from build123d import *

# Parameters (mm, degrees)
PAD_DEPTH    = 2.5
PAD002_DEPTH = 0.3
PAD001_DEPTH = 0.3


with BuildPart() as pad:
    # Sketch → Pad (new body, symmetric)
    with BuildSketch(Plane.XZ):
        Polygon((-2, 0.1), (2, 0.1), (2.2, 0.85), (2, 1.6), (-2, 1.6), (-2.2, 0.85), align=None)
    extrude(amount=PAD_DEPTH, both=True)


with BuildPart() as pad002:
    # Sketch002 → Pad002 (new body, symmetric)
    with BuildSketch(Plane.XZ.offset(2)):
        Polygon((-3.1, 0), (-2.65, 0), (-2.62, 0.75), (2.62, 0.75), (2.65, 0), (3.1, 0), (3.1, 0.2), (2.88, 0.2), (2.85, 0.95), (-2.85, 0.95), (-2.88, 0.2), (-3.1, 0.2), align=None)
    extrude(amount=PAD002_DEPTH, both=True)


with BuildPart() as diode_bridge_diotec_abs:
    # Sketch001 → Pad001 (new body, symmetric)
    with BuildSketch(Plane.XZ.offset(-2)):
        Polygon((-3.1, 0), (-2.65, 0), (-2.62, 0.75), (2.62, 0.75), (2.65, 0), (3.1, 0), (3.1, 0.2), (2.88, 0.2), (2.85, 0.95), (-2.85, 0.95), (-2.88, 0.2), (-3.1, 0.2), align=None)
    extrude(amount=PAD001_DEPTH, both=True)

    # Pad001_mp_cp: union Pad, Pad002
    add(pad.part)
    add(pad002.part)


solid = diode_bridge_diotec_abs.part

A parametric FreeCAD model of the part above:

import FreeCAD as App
import Part
import Sketcher
from FreeCAD import Vector
Q = App.Units.Quantity

doc = App.newDocument("Part")
body = doc.addObject("PartDesign::Body", "Body")

# Sketch on XZ plane
sketch1 = body.newObject("Sketcher::SketchObject", "Sketch")
sketch1.AttachmentSupport = (doc.getObject("XZ_Plane"), [""])
sketch1.MapMode = "FlatFace"
sketch1.addGeometry([
    Part.LineSegment(Vector(-2, 0.1, 0), Vector(2, 0.1, 0)),  # 0
    Part.LineSegment(Vector(2, 0.1, 0), Vector(2.2, 0.8, 0)),  # 1
    Part.LineSegment(Vector(2.2, 0.8, 0), Vector(2, 1.6, 0)),  # 2
    Part.LineSegment(Vector(2, 1.6, 0), Vector(-2, 1.6, 0)),  # 3
    Part.LineSegment(Vector(-2, 1.6, 0), Vector(-2.2, 0.8, 0)),  # 4
    Part.LineSegment(Vector(-2.2, 0.8, 0), Vector(-2, 0.1, 0)),  # 5
], False)
sketch1.addConstraint([
    Sketcher.Constraint("Coincident", 0, 2, 1, 1),
    Sketcher.Constraint("Coincident", 1, 2, 2, 1),
    Sketcher.Constraint("Coincident", 2, 2, 3, 1),
    Sketcher.Constraint("Coincident", 3, 2, 4, 1),
    Sketcher.Constraint("Coincident", 4, 2, 5, 1),
    Sketcher.Constraint("Coincident", 5, 2, 0, 1),
    Sketcher.Constraint("Horizontal", 0),
    Sketcher.Constraint("Horizontal", 3),
    Sketcher.Constraint("Symmetric", 1, 2, 4, 2, -2),
    Sketcher.Constraint("Parallel", 1, 4),
    Sketcher.Constraint("Parallel", 2, 5),
    Sketcher.Constraint("Vertical", 0, 2, 2, 2),
    Sketcher.Constraint("Vertical", 3, 2, 5, 2),
    Sketcher.Constraint("DistanceX", 0, 1, 0, 2, Q("4 mm")),
    Sketcher.Constraint("DistanceY", -1, 1, 0, 2, Q("0.1 mm")),
    Sketcher.Constraint("DistanceX", -1, 1, 1, 2, Q("2.2 mm")),
    Sketcher.Constraint("DistanceY", -1, 1, 2, 2, Q("1.6 mm")),
])
pad1 = body.newObject("PartDesign::Pad", "Pad")
pad1.Profile = sketch1
pad1.Length = 5
pad1.Midplane = True
body2 = doc.addObject("PartDesign::Body", "Body001")

# Sketch on XZ plane
sketch2 = body2.newObject("Sketcher::SketchObject", "Sketch001")
sketch2.AttachmentSupport = (doc.getObject("XZ_Plane001"), [""])
sketch2.MapMode = "FlatFace"
sketch2.AttachmentOffset = App.Placement(Vector(0, 0, 2), App.Rotation())
sketch2.addGeometry([
    Part.LineSegment(Vector(-3.1, 0, 0), Vector(-2.65, 0, 0)),  # 0
    Part.LineSegment(Vector(-2.65, 0, 0), Vector(-2.62, 0.75, 0)),  # 1
    Part.LineSegment(Vector(-2.62, 0.75, 0), Vector(2.62, 0.75, 0)),  # 2
    Part.LineSegment(Vector(2.62, 0.75, 0), Vector(2.65, 0, 0)),  # 3
    Part.LineSegment(Vector(2.65, 0, 0), Vector(3.1, 0, 0)),  # 4
    Part.LineSegment(Vector(3.1, 0, 0), Vector(3.1, 0.2, 0)),  # 5
    Part.LineSegment(Vector(3.1, 0.2, 0), Vector(2.88, 0.2, 0)),  # 6
    Part.LineSegment(Vector(2.88, 0.2, 0), Vector(2.85, 0.95, 0)),  # 7
    Part.LineSegment(Vector(2.85, 0.95, 0), Vector(-2.85, 0.95, 0)),  # 8
    Part.LineSegment(Vector(-2.85, 0.95, 0), Vector(-2.88, 0.2, 0)),  # 9
    Part.LineSegment(Vector(-2.88, 0.2, 0), Vector(-3.1, 0.2, 0)),  # 10
    Part.LineSegment(Vector(-3.1, 0.2, 0), Vector(-3.1, 0, 0)),  # 11
], False)
sketch2.addConstraint([
    Sketcher.Constraint("Coincident", 0, 2, 1, 1),
    Sketcher.Constraint("Coincident", 1, 2, 2, 1),
    Sketcher.Constraint("Coincident", 2, 2, 3, 1),
    Sketcher.Constraint("Coincident", 3, 2, 4, 1),
    Sketcher.Constraint("Coincident", 4, 2, 5, 1),
    Sketcher.Constraint("Coincident", 5, 2, 6, 1),
    Sketcher.Constraint("Coincident", 6, 2, 7, 1),
    Sketcher.Constraint("Coincident", 7, 2, 8, 1),
    Sketcher.Constraint("Coincident", 8, 2, 9, 1),
    Sketcher.Constraint("Coincident", 9, 2, 10, 1),
    Sketcher.Constraint("Coincident", 10, 2, 11, 1),
    Sketcher.Constraint("Coincident", 11, 2, 0, 1),
    Sketcher.Constraint("Horizontal", 0),
    Sketcher.Constraint("Horizontal", 2),
    Sketcher.Constraint("Horizontal", 4),
    Sketcher.Constraint("Vertical", 5),
    Sketcher.Constraint("Horizontal", 6),
    Sketcher.Constraint("Horizontal", 8),
    Sketcher.Constraint("Horizontal", 10),
    Sketcher.Constraint("Vertical", 11),
    Sketcher.Constraint("Symmetric", 0, 2, 3, 2, -1, 1),
    Sketcher.Constraint("Symmetric", 6, 2, 9, 2, -2),
    Sketcher.Constraint("Symmetric", 4, 2, 11, 2, -2),
    Sketcher.Constraint("Parallel", 3, 7),
    Sketcher.Constraint("Parallel", 1, 9),
    Sketcher.Constraint("Equal", 1, 3),
    Sketcher.Constraint("Equal", 3, 7),
    Sketcher.Constraint("DistanceX", 8, 2, 8, 1, Q("5.7 mm")),
    Sketcher.Constraint("DistanceY", 5, 1, 5, 2, Q("0.2 mm")),
    Sketcher.Constraint("DistanceX", 0, 1, 0, 2, Q("0.45 mm")),
    Sketcher.Constraint("DistanceX", 2, 1, 2, 2, Q("5.24 mm")),
    Sketcher.Constraint("DistanceX", -1, 1, 4, 2, Q("3.1 mm")),
    Sketcher.Constraint("DistanceY", -1, 1, 1, 2, Q("0.75 mm")),
])
pad2 = body2.newObject("PartDesign::Pad", "Pad001")
pad2.Profile = sketch2
pad2.Length = 0.6
pad2.Midplane = True
body3 = doc.addObject("PartDesign::Body", "Body002")

# Sketch on XZ plane
sketch3 = body3.newObject("Sketcher::SketchObject", "Sketch002")
sketch3.AttachmentSupport = (doc.getObject("XZ_Plane002"), [""])
sketch3.MapMode = "FlatFace"
sketch3.AttachmentOffset = App.Placement(Vector(0, 0, -2), App.Rotation())
sketch3.addGeometry([
    Part.LineSegment(Vector(-3.1, 0, 0), Vector(-2.65, 0, 0)),  # 0
    Part.LineSegment(Vector(-2.65, 0, 0), Vector(-2.62, 0.75, 0)),  # 1
    Part.LineSegment(Vector(-2.62, 0.75, 0), Vector(2.62, 0.75, 0)),  # 2
    Part.LineSegment(Vector(2.62, 0.75, 0), Vector(2.65, 0, 0)),  # 3
    Part.LineSegment(Vector(2.65, 0, 0), Vector(3.1, 0, 0)),  # 4
    Part.LineSegment(Vector(3.1, 0, 0), Vector(3.1, 0.2, 0)),  # 5
    Part.LineSegment(Vector(3.1, 0.2, 0), Vector(2.88, 0.2, 0)),  # 6
    Part.LineSegment(Vector(2.88, 0.2, 0), Vector(2.85, 0.95, 0)),  # 7
    Part.LineSegment(Vector(2.85, 0.95, 0), Vector(-2.85, 0.95, 0)),  # 8
    Part.LineSegment(Vector(-2.85, 0.95, 0), Vector(-2.88, 0.2, 0)),  # 9
    Part.LineSegment(Vector(-2.88, 0.2, 0), Vector(-3.1, 0.2, 0)),  # 10
    Part.LineSegment(Vector(-3.1, 0.2, 0), Vector(-3.1, 0, 0)),  # 11
], False)
sketch3.addConstraint([
    Sketcher.Constraint("Coincident", 0, 2, 1, 1),
    Sketcher.Constraint("Coincident", 1, 2, 2, 1),
    Sketcher.Constraint("Coincident", 2, 2, 3, 1),
    Sketcher.Constraint("Coincident", 3, 2, 4, 1),
    Sketcher.Constraint("Coincident", 4, 2, 5, 1),
    Sketcher.Constraint("Coincident", 5, 2, 6, 1),
    Sketcher.Constraint("Coincident", 6, 2, 7, 1),
    Sketcher.Constraint("Coincident", 7, 2, 8, 1),
    Sketcher.Constraint("Coincident", 8, 2, 9, 1),
    Sketcher.Constraint("Coincident", 9, 2, 10, 1),
    Sketcher.Constraint("Coincident", 10, 2, 11, 1),
    Sketcher.Constraint("Coincident", 11, 2, 0, 1),
    Sketcher.Constraint("Horizontal", 0),
    Sketcher.Constraint("Horizontal", 2),
    Sketcher.Constraint("Horizontal", 4),
    Sketcher.Constraint("Vertical", 5),
    Sketcher.Constraint("Horizontal", 6),
    Sketcher.Constraint("Horizontal", 8),
    Sketcher.Constraint("Horizontal", 10),
    Sketcher.Constraint("Vertical", 11),
    Sketcher.Constraint("Symmetric", 0, 2, 3, 2, -1, 1),
    Sketcher.Constraint("Symmetric", 6, 2, 9, 2, -2),
    Sketcher.Constraint("Symmetric", 4, 2, 11, 2, -2),
    Sketcher.Constraint("Parallel", 3, 7),
    Sketcher.Constraint("Parallel", 1, 9),
    Sketcher.Constraint("Equal", 1, 3),
    Sketcher.Constraint("Equal", 3, 7),
    Sketcher.Constraint("DistanceX", 8, 2, 8, 1, Q("5.7 mm")),
    Sketcher.Constraint("DistanceY", 5, 1, 5, 2, Q("0.2 mm")),
    Sketcher.Constraint("DistanceX", 0, 1, 0, 2, Q("0.45 mm")),
    Sketcher.Constraint("DistanceX", 2, 1, 2, 2, Q("5.24 mm")),
    Sketcher.Constraint("DistanceX", -1, 1, 4, 2, Q("3.1 mm")),
    Sketcher.Constraint("DistanceY", -1, 1, 1, 2, Q("0.75 mm")),
])
pad3 = body3.newObject("PartDesign::Pad", "Pad002")
pad3.Profile = sketch3
pad3.Length = 0.6
pad3.Midplane = True
doc.recompute()

boolean = body3.newObject("PartDesign::Boolean", "Boolean")
boolean.Type = "Fuse"
boolean.addObjects([body])
doc.recompute()

boolean2 = body3.newObject("PartDesign::Boolean", "Boolean001")
boolean2.Type = "Fuse"
boolean2.addObjects([body2])

doc.recompute()
